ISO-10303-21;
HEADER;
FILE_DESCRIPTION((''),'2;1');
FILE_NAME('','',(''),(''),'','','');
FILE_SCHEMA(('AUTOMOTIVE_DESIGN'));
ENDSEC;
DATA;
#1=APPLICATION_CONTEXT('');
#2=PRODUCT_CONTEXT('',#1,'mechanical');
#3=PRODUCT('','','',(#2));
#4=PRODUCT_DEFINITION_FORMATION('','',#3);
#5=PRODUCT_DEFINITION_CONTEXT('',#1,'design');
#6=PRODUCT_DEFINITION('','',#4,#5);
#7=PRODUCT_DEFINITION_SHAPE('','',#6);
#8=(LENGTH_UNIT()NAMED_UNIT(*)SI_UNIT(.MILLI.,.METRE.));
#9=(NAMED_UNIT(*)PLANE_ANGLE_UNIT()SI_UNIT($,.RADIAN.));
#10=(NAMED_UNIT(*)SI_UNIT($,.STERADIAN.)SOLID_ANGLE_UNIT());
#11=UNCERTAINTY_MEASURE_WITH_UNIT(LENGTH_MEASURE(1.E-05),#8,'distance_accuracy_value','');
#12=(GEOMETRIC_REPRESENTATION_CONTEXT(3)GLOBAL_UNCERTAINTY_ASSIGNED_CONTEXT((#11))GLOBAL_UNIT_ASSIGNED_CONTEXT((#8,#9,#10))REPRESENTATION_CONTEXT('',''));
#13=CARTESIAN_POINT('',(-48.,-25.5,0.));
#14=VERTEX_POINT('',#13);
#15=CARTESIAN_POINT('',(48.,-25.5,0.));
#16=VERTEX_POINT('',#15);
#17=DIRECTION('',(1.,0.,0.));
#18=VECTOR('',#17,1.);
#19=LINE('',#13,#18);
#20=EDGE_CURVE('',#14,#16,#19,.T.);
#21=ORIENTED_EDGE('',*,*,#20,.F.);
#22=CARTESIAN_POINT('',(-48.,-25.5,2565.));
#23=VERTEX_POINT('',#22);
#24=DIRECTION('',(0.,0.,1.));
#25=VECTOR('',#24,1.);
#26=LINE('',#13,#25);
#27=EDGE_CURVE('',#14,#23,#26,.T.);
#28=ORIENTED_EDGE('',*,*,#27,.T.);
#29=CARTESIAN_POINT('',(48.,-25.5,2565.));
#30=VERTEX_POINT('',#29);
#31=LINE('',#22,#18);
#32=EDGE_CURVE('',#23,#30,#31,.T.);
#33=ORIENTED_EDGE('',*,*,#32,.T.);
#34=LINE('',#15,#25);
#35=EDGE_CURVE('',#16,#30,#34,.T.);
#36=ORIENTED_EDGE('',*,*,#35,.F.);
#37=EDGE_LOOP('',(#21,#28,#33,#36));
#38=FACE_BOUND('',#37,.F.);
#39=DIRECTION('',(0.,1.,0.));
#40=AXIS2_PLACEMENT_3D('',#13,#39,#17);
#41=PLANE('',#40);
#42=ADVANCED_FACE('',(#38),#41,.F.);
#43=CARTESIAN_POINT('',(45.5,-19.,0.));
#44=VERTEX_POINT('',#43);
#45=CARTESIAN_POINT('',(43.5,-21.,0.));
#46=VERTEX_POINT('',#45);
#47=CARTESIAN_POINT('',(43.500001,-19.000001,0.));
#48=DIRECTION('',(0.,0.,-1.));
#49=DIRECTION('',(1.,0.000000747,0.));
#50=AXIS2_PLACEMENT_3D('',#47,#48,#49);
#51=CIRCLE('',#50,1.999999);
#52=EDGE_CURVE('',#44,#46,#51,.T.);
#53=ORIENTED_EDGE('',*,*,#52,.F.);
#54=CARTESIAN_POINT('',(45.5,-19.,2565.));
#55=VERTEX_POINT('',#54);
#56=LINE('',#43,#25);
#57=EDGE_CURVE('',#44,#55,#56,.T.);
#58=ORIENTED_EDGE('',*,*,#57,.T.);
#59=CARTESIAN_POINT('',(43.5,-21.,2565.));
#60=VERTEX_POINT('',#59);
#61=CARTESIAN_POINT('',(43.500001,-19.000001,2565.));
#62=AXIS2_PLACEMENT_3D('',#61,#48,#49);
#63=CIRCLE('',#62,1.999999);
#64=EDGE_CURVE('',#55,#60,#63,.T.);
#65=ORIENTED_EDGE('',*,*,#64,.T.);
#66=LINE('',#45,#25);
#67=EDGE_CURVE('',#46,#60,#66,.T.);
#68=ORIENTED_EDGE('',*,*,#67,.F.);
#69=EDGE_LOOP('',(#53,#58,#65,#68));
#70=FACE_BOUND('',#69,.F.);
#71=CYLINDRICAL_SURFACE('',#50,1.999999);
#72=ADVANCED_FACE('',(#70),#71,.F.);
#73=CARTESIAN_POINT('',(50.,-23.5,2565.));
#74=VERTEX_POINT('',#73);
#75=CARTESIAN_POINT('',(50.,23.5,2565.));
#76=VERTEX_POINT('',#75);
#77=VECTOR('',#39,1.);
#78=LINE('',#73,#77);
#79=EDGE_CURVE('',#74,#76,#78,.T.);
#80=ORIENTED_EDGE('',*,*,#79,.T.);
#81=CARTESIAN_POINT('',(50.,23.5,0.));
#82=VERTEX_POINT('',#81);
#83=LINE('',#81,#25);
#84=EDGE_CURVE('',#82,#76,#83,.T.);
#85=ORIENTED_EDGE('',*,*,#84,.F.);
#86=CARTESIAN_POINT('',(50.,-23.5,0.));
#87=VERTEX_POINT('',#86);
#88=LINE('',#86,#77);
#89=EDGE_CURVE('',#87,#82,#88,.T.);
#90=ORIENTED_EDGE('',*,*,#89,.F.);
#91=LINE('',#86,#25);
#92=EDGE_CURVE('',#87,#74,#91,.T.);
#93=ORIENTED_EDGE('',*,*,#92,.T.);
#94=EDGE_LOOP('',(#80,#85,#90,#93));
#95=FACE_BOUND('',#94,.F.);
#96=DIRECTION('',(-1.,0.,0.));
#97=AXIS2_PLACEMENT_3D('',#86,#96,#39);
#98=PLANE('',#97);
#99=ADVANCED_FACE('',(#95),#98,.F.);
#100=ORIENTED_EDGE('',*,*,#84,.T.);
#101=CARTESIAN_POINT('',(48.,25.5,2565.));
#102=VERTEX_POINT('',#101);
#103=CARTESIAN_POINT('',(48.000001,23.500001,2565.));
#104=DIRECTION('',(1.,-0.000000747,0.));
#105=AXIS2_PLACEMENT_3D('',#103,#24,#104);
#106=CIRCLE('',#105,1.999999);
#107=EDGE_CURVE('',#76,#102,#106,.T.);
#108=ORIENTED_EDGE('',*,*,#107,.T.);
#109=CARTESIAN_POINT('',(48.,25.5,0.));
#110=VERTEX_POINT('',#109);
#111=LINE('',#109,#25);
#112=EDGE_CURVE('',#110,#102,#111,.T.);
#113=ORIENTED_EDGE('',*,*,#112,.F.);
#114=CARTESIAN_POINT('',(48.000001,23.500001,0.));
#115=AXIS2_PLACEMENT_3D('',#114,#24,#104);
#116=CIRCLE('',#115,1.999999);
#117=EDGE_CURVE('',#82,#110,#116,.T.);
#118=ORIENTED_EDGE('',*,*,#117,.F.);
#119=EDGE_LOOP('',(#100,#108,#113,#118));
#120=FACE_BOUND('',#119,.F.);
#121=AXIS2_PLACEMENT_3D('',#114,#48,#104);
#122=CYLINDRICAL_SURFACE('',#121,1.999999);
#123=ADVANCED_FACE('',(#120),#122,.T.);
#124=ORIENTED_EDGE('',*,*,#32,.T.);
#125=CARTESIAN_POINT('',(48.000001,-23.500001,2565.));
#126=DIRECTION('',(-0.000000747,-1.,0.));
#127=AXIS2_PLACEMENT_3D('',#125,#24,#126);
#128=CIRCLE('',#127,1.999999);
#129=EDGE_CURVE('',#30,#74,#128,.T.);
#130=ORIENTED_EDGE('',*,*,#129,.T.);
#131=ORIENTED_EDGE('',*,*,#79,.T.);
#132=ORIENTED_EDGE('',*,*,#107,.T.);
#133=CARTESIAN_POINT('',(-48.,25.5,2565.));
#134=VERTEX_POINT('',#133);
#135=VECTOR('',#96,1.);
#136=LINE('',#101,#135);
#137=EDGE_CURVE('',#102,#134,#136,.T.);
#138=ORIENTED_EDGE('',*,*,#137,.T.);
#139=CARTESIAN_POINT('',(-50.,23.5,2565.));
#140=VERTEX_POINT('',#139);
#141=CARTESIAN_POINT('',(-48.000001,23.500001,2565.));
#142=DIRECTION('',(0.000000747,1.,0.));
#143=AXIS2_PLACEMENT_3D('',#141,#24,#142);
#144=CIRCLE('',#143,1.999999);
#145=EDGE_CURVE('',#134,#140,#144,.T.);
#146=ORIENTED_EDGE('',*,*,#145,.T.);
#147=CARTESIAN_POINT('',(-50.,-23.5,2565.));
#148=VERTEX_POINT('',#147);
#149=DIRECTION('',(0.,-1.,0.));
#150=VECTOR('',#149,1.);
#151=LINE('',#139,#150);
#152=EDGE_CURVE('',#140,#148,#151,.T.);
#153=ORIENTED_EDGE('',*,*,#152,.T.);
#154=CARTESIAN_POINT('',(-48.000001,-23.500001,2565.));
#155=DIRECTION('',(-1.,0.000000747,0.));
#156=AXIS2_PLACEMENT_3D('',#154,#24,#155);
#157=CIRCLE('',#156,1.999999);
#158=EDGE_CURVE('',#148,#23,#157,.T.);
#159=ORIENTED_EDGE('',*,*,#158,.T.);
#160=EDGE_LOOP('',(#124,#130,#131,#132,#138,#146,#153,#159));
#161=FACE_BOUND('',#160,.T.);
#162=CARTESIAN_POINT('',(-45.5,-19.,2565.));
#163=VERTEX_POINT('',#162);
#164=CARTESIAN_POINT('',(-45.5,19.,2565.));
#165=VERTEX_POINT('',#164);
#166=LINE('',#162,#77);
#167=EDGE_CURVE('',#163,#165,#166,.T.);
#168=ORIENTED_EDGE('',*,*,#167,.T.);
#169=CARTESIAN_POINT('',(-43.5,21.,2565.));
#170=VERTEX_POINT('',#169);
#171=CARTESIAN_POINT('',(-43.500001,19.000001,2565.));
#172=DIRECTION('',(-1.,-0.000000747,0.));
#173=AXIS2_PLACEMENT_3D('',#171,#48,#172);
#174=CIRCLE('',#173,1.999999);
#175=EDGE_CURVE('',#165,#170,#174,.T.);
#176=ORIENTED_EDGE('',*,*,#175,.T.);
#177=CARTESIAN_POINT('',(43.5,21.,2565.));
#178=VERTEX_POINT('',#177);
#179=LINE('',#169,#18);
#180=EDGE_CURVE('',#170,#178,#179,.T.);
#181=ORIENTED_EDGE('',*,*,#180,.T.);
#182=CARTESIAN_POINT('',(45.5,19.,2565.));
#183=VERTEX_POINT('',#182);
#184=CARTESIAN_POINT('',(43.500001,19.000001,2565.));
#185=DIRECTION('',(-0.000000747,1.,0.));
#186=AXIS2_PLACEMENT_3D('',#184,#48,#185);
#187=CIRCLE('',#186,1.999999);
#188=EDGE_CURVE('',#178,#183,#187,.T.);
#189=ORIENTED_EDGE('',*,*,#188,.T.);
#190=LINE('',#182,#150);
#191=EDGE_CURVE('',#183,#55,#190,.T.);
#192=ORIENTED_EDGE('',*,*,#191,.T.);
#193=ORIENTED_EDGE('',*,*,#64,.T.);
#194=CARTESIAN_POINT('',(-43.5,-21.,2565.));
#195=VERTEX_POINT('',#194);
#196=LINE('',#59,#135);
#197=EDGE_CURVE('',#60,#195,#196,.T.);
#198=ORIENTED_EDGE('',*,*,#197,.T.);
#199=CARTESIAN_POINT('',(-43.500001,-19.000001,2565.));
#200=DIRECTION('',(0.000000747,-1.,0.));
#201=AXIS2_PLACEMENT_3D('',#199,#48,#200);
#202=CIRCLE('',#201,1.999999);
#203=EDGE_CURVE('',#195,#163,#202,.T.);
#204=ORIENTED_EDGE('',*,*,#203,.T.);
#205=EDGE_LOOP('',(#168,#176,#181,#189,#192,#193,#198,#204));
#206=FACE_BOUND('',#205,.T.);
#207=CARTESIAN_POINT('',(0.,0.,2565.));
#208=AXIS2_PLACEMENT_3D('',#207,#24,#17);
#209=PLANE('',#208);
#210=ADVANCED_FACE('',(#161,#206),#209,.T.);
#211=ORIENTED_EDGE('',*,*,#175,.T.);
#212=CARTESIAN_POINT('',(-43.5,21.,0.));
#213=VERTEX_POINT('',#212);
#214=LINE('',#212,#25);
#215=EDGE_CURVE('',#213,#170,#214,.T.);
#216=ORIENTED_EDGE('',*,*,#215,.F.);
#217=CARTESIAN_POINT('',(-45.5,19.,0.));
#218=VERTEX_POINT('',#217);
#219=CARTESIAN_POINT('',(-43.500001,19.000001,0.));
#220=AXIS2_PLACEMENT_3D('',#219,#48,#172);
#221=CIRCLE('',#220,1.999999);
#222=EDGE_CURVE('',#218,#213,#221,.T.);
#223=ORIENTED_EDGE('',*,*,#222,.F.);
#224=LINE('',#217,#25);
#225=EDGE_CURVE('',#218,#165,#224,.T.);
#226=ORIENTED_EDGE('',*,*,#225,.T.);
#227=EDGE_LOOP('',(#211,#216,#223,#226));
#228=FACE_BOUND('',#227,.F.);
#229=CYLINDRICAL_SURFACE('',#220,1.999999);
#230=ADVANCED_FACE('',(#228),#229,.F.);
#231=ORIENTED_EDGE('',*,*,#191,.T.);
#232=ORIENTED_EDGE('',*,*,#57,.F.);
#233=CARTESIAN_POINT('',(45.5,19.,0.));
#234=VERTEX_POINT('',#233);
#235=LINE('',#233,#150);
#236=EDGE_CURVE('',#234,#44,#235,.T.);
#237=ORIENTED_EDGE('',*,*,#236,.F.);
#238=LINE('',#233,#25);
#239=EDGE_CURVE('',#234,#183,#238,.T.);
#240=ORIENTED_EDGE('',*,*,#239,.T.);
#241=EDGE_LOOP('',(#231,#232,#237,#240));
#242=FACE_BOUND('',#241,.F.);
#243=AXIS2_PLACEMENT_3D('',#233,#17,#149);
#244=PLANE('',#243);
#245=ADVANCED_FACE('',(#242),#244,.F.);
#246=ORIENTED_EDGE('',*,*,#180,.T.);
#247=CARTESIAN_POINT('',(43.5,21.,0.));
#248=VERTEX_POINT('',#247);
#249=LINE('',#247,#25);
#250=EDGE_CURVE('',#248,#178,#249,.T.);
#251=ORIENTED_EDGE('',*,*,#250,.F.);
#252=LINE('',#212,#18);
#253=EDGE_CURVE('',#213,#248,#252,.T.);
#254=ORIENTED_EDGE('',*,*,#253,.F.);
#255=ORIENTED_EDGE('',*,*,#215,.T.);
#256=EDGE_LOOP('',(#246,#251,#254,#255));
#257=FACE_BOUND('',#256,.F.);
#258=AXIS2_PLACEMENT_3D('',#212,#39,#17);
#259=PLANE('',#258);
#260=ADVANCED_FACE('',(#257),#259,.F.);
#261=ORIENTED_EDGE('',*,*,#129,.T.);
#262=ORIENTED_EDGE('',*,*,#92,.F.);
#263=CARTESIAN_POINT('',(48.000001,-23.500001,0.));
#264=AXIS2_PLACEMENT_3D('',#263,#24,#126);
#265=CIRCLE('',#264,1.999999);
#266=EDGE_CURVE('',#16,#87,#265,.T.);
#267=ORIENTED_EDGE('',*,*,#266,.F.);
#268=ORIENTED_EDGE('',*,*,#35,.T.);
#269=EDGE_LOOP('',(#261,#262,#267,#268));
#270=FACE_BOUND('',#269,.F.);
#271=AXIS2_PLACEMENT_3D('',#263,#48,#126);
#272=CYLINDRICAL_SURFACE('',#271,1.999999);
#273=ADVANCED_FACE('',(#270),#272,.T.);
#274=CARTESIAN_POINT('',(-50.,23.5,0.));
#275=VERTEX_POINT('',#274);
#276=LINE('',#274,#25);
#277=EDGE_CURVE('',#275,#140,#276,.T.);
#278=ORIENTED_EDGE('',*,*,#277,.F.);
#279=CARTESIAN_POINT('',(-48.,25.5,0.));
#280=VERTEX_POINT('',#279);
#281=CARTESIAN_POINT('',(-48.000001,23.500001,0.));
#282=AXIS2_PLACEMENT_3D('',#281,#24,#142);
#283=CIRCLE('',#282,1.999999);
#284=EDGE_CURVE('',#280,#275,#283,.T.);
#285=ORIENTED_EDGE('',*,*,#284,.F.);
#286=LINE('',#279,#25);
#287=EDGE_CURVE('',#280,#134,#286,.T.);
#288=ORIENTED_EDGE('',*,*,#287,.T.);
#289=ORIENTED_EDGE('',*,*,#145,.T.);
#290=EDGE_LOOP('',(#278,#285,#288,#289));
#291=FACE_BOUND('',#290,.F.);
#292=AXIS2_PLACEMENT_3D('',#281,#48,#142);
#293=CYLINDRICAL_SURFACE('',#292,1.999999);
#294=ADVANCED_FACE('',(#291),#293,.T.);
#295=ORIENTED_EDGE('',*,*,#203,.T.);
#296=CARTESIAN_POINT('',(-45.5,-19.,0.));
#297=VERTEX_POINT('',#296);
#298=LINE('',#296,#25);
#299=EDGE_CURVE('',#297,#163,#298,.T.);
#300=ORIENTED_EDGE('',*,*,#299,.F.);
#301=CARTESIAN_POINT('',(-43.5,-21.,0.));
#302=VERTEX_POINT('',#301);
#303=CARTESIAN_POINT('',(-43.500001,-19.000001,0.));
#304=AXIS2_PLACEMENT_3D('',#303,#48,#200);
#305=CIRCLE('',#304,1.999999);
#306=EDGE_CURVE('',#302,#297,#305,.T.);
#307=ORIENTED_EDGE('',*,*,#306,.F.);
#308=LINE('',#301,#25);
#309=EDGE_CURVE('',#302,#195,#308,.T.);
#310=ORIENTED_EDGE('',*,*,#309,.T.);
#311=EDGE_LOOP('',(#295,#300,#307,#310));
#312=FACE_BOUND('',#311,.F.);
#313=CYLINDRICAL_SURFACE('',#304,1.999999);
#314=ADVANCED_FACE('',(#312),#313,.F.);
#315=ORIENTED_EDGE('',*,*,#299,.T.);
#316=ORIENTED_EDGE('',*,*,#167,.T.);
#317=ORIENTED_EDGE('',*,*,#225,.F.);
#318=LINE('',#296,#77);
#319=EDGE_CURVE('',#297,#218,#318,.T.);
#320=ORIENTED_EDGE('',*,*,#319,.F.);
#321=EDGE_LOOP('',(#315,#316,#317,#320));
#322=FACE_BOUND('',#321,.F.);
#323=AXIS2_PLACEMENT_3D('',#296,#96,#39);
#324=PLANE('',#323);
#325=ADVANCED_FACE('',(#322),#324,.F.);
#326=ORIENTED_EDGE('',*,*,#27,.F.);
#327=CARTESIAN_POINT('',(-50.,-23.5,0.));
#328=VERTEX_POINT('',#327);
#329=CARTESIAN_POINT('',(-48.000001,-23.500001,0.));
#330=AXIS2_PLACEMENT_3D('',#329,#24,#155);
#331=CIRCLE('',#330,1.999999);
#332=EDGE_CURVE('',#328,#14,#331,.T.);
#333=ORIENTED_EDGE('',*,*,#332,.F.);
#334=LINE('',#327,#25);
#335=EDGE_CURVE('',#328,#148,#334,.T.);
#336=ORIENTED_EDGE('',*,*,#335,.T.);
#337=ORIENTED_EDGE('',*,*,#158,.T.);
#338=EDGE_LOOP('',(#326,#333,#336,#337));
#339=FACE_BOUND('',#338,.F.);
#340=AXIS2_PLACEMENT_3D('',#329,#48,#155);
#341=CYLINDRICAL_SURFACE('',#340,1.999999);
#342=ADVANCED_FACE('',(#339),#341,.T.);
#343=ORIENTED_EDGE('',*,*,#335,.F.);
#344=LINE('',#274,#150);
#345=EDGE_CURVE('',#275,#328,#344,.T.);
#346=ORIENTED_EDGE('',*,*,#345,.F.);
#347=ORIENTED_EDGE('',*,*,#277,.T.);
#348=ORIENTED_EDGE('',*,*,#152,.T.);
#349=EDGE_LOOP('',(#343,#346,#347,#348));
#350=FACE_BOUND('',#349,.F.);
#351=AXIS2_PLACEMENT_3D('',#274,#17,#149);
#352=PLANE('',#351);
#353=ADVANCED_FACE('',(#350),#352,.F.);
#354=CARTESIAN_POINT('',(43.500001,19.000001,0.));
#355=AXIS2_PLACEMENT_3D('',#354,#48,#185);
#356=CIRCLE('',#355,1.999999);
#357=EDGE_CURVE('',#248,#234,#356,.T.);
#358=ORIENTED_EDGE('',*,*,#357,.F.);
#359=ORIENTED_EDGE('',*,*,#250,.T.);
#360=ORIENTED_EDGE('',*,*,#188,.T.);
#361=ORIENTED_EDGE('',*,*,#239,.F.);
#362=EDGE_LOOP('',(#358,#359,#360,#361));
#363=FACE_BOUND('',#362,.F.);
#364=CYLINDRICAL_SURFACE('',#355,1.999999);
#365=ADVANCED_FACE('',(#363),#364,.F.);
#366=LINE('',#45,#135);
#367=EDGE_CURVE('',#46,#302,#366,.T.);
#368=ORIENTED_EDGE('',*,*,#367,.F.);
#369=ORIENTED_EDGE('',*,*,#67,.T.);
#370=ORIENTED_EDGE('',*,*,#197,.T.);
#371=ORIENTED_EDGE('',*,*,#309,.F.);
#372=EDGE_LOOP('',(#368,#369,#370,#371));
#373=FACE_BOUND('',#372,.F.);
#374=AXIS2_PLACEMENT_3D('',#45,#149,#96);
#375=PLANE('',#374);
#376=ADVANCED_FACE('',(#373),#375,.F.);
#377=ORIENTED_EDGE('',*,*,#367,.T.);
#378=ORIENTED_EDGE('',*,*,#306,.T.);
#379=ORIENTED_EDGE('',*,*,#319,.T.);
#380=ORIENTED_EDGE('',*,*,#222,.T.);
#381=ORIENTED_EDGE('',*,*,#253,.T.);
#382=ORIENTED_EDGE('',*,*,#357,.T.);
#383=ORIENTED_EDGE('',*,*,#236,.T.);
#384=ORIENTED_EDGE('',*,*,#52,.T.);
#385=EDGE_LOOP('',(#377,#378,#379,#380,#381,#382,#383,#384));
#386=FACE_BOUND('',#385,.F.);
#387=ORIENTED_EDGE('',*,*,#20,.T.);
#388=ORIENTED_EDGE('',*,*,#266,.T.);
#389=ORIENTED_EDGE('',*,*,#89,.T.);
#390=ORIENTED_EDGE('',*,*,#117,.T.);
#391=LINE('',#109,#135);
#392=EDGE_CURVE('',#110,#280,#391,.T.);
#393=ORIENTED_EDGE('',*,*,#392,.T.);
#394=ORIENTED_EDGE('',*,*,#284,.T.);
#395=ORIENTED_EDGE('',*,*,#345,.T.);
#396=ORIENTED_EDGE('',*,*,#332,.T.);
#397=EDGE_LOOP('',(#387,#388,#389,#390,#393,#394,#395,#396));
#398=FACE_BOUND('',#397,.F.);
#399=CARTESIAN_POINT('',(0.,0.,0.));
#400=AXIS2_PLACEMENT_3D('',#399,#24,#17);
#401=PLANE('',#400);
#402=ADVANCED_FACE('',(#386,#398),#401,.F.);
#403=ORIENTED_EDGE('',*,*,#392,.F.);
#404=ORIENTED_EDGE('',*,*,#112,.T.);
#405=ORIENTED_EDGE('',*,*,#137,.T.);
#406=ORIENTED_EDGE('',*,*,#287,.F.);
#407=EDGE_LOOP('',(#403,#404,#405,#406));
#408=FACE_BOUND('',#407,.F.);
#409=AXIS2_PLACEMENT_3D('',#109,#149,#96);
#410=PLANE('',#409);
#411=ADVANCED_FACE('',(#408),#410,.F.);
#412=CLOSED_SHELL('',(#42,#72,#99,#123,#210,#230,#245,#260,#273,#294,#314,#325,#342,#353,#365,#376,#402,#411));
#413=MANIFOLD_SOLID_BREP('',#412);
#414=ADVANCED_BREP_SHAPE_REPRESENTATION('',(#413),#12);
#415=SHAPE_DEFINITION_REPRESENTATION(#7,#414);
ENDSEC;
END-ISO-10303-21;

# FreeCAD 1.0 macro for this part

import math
import FreeCAD as App
import Part
import Sketcher
from FreeCAD import Vector

doc = App.newDocument("Part")
params = doc.addObject("Spreadsheet::Sheet", "Params")
for row, (alias, value) in enumerate([
    ("sketch1_radius", "1.999999 mm"),
    ("sketch1_width", "96 mm"),
    ("sketch1_width2", "87 mm"),
    ("sketch1_height", "47 mm"),
    ("sketch1_height2", "38 mm"),
    ("pad1_length", "2565 mm"),
], start=1):
    params.set(f"A{row}", alias)
    params.set(f"B{row}", "=" + value)
    params.setAlias(f"B{row}", alias)

body = doc.addObject("PartDesign::Body", "Body")

# Sketch on XY plane
sketch1 = doc.addObject("Sketcher::SketchObject", "Sketch")
body.addObject(sketch1)
sketch1.AttachmentSupport = (doc.XY_Plane, [""])
sketch1.MapMode = "FlatFace"
sketch1.addGeometry(Part.LineSegment(Vector(-48, -25.5, 0), Vector(48, -25.5, 0)), False)
sketch1.addGeometry(Part.ArcOfCircle(Part.Circle(Vector(48, -23.5, 0), Vector(0, 0, 1), 2), math.radians(-90), math.radians(0)), False)
sketch1.addGeometry(Part.LineSegment(Vector(50, -23.5, 0), Vector(50, 23.5, 0)), False)
sketch1.addGeometry(Part.ArcOfCircle(Part.Circle(Vector(48, 23.5, 0), Vector(0, 0, 1), 2), math.radians(0), math.radians(90)), False)
sketch1.addGeometry(Part.LineSegment(Vector(48, 25.5, 0), Vector(-48, 25.5, 0)), False)
sketch1.addGeometry(Part.ArcOfCircle(Part.Circle(Vector(-48, 23.5, 0), Vector(0, 0, 1), 2), math.radians(90), math.radians(180)), False)
sketch1.addGeometry(Part.LineSegment(Vector(-50, 23.5, 0), Vector(-50, -23.5, 0)), False)
sketch1.addGeometry(Part.ArcOfCircle(Part.Circle(Vector(-48, -23.5, 0), Vector(0, 0, 1), 2), math.radians(180), math.radians(270)), False)
sketch1.addGeometry(Part.ArcOfCircle(Part.Circle(Vector(-43.5, 19, 0), Vector(0, 0, 1), 2), math.radians(90), math.radians(180)), False)
sketch1.addGeometry(Part.LineSegment(Vector(-43.5, 21, 0), Vector(43.5, 21, 0)), False)
sketch1.addGeometry(Part.ArcOfCircle(Part.Circle(Vector(43.5, 19, 0), Vector(0, 0, 1), 2), math.radians(0), math.radians(90)), False)
sketch1.addGeometry(Part.LineSegment(Vector(45.5, 19, 0), Vector(45.5, -19, 0)), False)
sketch1.addGeometry(Part.ArcOfCircle(Part.Circle(Vector(43.5, -19, 0), Vector(0, 0, 1), 2), math.radians(-90), math.radians(0)), False)
sketch1.addGeometry(Part.LineSegment(Vector(43.5, -21, 0), Vector(-43.5, -21, 0)), False)
sketch1.addGeometry(Part.ArcOfCircle(Part.Circle(Vector(-43.5, -19, 0), Vector(0, 0, 1), 2), math.radians(180), math.radians(270)), False)
sketch1.addGeometry(Part.LineSegment(Vector(-45.5, -19, 0), Vector(-45.5, 19, 0)), False)
sketch1.addConstraint(Sketcher.Constraint("Tangent", 0, 2, 1, 1))
sketch1.addConstraint(Sketcher.Constraint("Tangent", 1, 2, 2, 1))
sketch1.addConstraint(Sketcher.Constraint("Tangent", 2, 2, 3, 1))
sketch1.addConstraint(Sketcher.Constraint("Tangent", 3, 2, 4, 1))
sketch1.addConstraint(Sketcher.Constraint("Tangent", 4, 2, 5, 1))
sketch1.addConstraint(Sketcher.Constraint("Tangent", 5, 2, 6, 1))
sketch1.addConstraint(Sketcher.Constraint("Tangent", 6, 2, 7, 1))
sketch1.addConstraint(Sketcher.Constraint("Tangent", 7, 2, 0, 1))
sketch1.addConstraint(Sketcher.Constraint("Tangent", 8, 1, 9, 1))
sketch1.addConstraint(Sketcher.Constraint("Tangent", 9, 2, 10, 2))
sketch1.addConstraint(Sketcher.Constraint("Tangent", 10, 1, 11, 1))
sketch1.addConstraint(Sketcher.Constraint("Tangent", 11, 2, 12, 2))
sketch1.addConstraint(Sketcher.Constraint("Tangent", 12, 1, 13, 1))
sketch1.addConstraint(Sketcher.Constraint("Tangent", 13, 2, 14, 2))
sketch1.addConstraint(Sketcher.Constraint("Tangent", 14, 1, 15, 1))
sketch1.addConstraint(Sketcher.Constraint("Tangent", 15, 2, 8, 2))
sketch1.addConstraint(Sketcher.Constraint("Horizontal", 0))
sketch1.addConstraint(Sketcher.Constraint("Vertical", 2))
sketch1.addConstraint(Sketcher.Constraint("Horizontal", 4))
sketch1.addConstraint(Sketcher.Constraint("Vertical", 6))
sketch1.addConstraint(Sketcher.Constraint("Horizontal", 9))
sketch1.addConstraint(Sketcher.Constraint("Vertical", 11))
sketch1.addConstraint(Sketcher.Constraint("Horizontal", 13))
sketch1.addConstraint(Sketcher.Constraint("Vertical", 15))
sketch1.addConstraint(Sketcher.Constraint("Equal", 1, 3))
sketch1.addConstraint(Sketcher.Constraint("Equal", 3, 5))
sketch1.addConstraint(Sketcher.Constraint("Equal", 5, 7))
sketch1.addConstraint(Sketcher.Constraint("Equal", 7, 8))
sketch1.addConstraint(Sketcher.Constraint("Equal", 8, 10))
sketch1.addConstraint(Sketcher.Constraint("Equal", 10, 12))
sketch1.addConstraint(Sketcher.Constraint("Equal", 12, 14))
sketch1.addConstraint(Sketcher.Constraint("Symmetric", 1, 3, 5, 3, -1, 1))
sketch1.addConstraint(Sketcher.Constraint("Symmetric", 8, 3, 12, 3, -1, 1))
sketch1.addConstraint(Sketcher.Constraint("Radius", 1, 1.999999))
sketch1.addConstraint(Sketcher.Constraint("DistanceX", 0, 1, 0, 2, 96.0))
sketch1.addConstraint(Sketcher.Constraint("DistanceX", 9, 1, 9, 2, 87.0))
sketch1.addConstraint(Sketcher.Constraint("DistanceY", 2, 1, 2, 2, 47.0))
sketch1.addConstraint(Sketcher.Constraint("DistanceY", 11, 2, 11, 1, 38.0))
sketch1.setExpression("Constraints[33]", "Params.sketch1_radius")
sketch1.setExpression("Constraints[34]", "Params.sketch1_width")
sketch1.setExpression("Constraints[35]", "Params.sketch1_width2")
sketch1.setExpression("Constraints[36]", "Params.sketch1_height")
sketch1.setExpression("Constraints[37]", "Params.sketch1_height2")
pad1 = doc.addObject("PartDesign::Pad", "Pad")
body.addObject(pad1)
pad1.Profile = sketch1
pad1.setExpression("Length", "Params.pad1_length")

doc.recompute()
